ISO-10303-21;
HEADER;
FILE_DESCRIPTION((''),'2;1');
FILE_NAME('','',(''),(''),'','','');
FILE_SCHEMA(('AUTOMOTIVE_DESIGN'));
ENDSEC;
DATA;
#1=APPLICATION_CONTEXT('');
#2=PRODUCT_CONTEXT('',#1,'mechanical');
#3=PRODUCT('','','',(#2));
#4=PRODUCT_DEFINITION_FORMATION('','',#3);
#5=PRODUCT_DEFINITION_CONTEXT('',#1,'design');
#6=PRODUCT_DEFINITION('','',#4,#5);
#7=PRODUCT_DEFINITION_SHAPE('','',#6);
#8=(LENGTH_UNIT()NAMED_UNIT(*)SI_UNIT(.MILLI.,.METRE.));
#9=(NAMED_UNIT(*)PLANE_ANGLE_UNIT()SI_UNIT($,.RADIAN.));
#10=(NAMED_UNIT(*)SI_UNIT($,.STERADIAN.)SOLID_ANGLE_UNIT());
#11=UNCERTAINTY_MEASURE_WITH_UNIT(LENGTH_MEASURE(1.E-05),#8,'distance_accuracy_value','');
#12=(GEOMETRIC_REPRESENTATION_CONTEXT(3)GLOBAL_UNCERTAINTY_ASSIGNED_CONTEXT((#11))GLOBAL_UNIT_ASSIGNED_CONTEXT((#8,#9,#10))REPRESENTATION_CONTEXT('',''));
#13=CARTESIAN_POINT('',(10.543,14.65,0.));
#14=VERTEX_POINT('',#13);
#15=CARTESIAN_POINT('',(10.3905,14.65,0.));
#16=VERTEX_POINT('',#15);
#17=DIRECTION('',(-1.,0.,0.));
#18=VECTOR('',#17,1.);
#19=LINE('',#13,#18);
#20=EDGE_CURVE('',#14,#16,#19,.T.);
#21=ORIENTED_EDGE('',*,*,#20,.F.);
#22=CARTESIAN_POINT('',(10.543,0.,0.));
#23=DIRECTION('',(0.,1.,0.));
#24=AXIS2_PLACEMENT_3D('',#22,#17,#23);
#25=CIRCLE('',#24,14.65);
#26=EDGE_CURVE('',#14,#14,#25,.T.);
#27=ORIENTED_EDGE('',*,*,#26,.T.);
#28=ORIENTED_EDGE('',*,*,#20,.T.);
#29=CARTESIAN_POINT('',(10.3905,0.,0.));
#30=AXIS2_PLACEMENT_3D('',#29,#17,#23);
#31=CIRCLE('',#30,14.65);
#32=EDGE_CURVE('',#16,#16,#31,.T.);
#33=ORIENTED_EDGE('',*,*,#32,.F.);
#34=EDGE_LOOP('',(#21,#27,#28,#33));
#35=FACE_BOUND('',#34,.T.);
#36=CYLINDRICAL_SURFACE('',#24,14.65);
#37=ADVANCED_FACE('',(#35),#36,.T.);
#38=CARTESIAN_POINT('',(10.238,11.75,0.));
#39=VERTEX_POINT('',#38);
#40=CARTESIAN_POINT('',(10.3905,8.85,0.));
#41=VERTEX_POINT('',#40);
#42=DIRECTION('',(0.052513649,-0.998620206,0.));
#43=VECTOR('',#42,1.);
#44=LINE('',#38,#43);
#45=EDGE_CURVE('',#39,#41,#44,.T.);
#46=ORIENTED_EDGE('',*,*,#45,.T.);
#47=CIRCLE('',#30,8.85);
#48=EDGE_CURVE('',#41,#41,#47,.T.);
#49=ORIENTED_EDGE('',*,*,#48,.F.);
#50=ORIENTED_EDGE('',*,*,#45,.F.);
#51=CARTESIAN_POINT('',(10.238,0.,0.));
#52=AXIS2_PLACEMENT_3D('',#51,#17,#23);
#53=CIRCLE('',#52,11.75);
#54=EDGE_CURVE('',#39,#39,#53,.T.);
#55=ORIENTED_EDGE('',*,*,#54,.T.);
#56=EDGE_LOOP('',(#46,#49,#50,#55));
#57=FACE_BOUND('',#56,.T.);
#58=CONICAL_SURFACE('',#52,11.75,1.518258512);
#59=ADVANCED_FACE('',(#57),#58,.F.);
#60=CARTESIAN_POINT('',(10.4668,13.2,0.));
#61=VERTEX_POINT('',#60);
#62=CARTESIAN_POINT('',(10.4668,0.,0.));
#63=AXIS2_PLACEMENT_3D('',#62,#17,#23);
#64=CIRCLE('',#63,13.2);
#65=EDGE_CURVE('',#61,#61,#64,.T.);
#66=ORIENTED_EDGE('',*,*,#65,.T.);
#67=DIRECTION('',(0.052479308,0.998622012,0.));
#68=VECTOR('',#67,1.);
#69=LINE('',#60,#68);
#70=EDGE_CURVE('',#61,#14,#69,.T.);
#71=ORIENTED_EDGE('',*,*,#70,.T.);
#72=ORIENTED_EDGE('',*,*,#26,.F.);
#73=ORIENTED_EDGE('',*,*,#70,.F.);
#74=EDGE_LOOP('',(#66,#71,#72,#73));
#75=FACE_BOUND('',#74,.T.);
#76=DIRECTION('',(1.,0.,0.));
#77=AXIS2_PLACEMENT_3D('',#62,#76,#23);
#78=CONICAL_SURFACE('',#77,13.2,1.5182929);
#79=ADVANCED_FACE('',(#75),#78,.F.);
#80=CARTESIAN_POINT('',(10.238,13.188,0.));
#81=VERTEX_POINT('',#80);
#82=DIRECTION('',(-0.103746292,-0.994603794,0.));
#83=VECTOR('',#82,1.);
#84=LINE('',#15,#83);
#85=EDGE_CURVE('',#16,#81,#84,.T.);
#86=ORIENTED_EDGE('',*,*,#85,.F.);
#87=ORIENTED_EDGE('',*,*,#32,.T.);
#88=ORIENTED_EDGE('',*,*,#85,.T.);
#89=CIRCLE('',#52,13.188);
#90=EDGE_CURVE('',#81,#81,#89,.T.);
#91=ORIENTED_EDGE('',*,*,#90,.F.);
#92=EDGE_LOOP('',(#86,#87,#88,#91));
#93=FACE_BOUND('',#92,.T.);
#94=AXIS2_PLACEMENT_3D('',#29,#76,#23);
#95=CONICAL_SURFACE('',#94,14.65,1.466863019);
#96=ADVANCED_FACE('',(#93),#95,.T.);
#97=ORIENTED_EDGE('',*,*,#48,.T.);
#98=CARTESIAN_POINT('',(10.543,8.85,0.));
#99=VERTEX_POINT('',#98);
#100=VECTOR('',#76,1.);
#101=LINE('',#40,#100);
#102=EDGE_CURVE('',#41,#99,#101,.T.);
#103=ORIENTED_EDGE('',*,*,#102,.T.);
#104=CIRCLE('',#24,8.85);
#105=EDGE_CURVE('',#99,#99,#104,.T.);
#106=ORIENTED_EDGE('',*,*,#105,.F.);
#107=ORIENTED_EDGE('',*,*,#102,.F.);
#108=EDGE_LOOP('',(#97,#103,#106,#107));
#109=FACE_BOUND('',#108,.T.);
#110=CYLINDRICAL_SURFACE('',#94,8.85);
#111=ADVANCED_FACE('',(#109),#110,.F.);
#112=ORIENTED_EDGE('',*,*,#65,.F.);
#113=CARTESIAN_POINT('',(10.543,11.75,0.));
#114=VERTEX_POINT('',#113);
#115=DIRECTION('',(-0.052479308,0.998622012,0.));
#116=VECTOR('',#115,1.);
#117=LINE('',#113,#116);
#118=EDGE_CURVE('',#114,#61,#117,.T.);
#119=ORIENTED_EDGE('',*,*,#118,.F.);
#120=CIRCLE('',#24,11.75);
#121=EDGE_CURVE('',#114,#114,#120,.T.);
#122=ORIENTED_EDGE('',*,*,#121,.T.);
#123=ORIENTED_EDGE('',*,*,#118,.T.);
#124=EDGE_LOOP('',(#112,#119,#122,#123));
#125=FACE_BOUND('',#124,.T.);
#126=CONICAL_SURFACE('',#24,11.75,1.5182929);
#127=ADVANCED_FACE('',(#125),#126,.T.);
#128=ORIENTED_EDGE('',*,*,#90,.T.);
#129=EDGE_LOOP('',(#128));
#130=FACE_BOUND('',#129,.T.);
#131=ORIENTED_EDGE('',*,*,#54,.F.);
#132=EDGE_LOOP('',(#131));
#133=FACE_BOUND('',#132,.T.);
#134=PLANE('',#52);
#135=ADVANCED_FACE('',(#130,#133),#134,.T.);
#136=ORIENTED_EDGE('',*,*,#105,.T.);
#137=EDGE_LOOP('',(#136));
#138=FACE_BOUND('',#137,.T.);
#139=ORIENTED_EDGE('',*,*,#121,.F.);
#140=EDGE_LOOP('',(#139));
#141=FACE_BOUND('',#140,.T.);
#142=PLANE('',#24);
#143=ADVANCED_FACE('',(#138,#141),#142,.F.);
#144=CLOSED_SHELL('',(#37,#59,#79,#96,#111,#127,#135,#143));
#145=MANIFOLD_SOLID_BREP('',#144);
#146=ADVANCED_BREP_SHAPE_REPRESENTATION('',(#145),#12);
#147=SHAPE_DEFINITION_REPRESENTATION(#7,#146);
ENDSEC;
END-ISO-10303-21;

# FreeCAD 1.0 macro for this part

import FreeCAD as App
import Part
import Sketcher
Q = App.Units.Quantity


def add_polygon(sketch, points):
    """Adds a closed chain of lines whose ends are joined by coincident constraints."""
    first, n = sketch.GeometryCount, len(points)
    for a, b in zip(points, points[1:] + points[:1]):
        sketch.addGeometry(Part.LineSegment(App.Vector(*a, 0), App.Vector(*b, 0)), False)
    for i in range(n):
        sketch.addConstraint(Sketcher.Constraint("Coincident", first + i, 2, first + (i + 1) % n, 1))

doc = App.newDocument("Part")
body = doc.addObject("PartDesign::Body", "Body")

sketch1 = doc.addObject("Sketcher::SketchObject", "Sketch")
body.addObject(sketch1)
sketch1.AttachmentSupport = (doc.XY_Plane, [""])
sketch1.MapMode = "FlatFace"
add_polygon(sketch1, [(10.39, 14.65), (10.24, 13.19), (10.24, 11.75), (10.39, 8.85), (10.54, 8.85), (10.54, 11.75), (10.47, 13.2), (10.54, 14.65)])
sketch1.addConstraint(Sketcher.Constraint("Vertical", 1))
sketch1.addConstraint(Sketcher.Constraint("Horizontal", 3))
sketch1.addConstraint(Sketcher.Constraint("Vertical", 4))
sketch1.addConstraint(Sketcher.Constraint("Horizontal", 7))
sketch1.addConstraint(Sketcher.Constraint("Parallel", 2, 5))
sketch1.addConstraint(Sketcher.Constraint("Horizontal", 1, 2, 4, 2))
sketch1.addConstraint(Sketcher.Constraint("Vertical", 4, 2, 6, 2))
sketch1.addConstraint(Sketcher.Constraint("Vertical", 2, 2, 7, 2))
sketch1.addConstraint(Sketcher.Constraint("Equal", 5, 6))
sketch1.addConstraint(Sketcher.Constraint("DistanceY", 4, 1, 4, 2, Q("2.9 mm")))
sketch1.addConstraint(Sketcher.Constraint("DistanceY", -1, 1, 5, 2, Q("13.2 mm")))
sketch1.addConstraint(Sketcher.Constraint("Angle", 2, Q("-86.9898 deg")))
sketch1.addConstraint(Sketcher.Constraint("DistanceY", 4, 2, 6, 2, Q("2.9 mm")))
sketch1.addConstraint(Sketcher.Constraint("Distance", 0, Q("1.47 mm")))
sketch1.addConstraint(Sketcher.Constraint("DistanceX", 3, 1, 3, 2, Q("0.1525 mm")))
sketch1.addConstraint(Sketcher.Constraint("DistanceX", -1, 1, 0, 2, Q("10.238 mm")))
revolution = doc.addObject("PartDesign::Revolution", "Revolution")
body.addObject(revolution)
revolution.Profile = sketch1
revolution.ReferenceAxis = (sketch1, ["H_Axis"])
revolution.Angle = 360

doc.recompute()
